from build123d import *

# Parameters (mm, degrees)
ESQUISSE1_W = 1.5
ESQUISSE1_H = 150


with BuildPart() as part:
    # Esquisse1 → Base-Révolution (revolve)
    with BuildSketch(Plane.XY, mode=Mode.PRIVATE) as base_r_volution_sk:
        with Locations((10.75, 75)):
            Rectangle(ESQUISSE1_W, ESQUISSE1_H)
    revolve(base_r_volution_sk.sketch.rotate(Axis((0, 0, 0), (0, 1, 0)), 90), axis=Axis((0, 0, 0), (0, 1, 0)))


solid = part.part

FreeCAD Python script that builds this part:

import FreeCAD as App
import Part
import Sketcher

V = App.Vector


def add_polygon(sketch, points):
    """Adds a closed chain of lines whose ends are joined by coincident constraints."""
    first, n = sketch.GeometryCount, len(points)
    for a, b in zip(points, points[1:] + points[:1]):
        sketch.addGeometry(Part.LineSegment(App.Vector(*a, 0), App.Vector(*b, 0)), False)
    for i in range(n):
        sketch.addConstraint(Sketcher.Constraint("Coincident", first + i, 2, first + (i + 1) % n, 1))

doc = App.newDocument("Part")
body = doc.addObject("PartDesign::Body", "Body")

# Sketch on XY plane
sketch1 = body.newObject("Sketcher::SketchObject", "Sketch")
sketch1.AttachmentSupport = (doc.getObject("XY_Plane"), [""])
sketch1.MapMode = "FlatFace"
add_polygon(sketch1, [(10, 150), (10, 0), (11.5, 0), (11.5, 150)])  # lines 0-3
sketch1.addConstraint(Sketcher.Constraint("Vertical", 0))
sketch1.addConstraint(Sketcher.Constraint("Horizontal", 1))
sketch1.addConstraint(Sketcher.Constraint("Vertical", 2))
sketch1.addConstraint(Sketcher.Constraint("Horizontal", 3))
sketch1.addConstraint(Sketcher.Constraint("PointOnObject", 0, 2, -1))
sketch1.addConstraint(Sketcher.Constraint("DistanceY", 0, 2, 0, 1, 150.0))
sketch1.addConstraint(Sketcher.Constraint("DistanceX", 1, 1, 1, 2, 1.5))
sketch1.addConstraint(Sketcher.Constraint("DistanceX", -1, 1, 0, 2, 10.0))
revolution = body.newObject("PartDesign::Revolution", "Revolution")
revolution.Profile = sketch1
revolution.ReferenceAxis = (sketch1, ["V_Axis"])
revolution.Angle = 360

doc.recompute()
